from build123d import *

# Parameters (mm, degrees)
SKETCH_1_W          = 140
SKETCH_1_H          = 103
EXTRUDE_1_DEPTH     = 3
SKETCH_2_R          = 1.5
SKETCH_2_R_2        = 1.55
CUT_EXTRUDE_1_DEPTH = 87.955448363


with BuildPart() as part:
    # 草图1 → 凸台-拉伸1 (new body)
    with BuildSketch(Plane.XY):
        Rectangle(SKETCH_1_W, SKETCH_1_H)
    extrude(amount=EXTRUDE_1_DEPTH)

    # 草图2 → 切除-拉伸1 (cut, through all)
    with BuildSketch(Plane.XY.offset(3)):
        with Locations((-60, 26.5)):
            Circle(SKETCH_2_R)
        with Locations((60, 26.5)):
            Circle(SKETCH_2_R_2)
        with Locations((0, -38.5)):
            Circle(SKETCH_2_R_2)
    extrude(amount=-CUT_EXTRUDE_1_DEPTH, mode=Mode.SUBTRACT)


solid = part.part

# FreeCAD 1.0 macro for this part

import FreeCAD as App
import Part
import Sketcher

doc = App.newDocument("Part")
body = doc.addObject("PartDesign::Body", "Body")

# Sketch on XY plane
sketch1 = body.newObject("Sketcher::SketchObject", "Sketch")
sketch1.AttachmentSupport = (doc.getObject("XY_Plane"), [""])
sketch1.MapMode = "FlatFace"
sketch1.addGeometry([
    Part.LineSegment(App.Vector(-70, 52, 0), App.Vector(-70, -52, 0)),
    Part.LineSegment(App.Vector(-70, -52, 0), App.Vector(70, -52, 0)),
    Part.LineSegment(App.Vector(70, -52, 0), App.Vector(70, 52, 0)),
    Part.LineSegment(App.Vector(70, 52, 0), App.Vector(-70, 52, 0)),
], False)
sketch1.addConstraint([
    Sketcher.Constraint("Coincident", 0, 2, 1, 1),
    Sketcher.Constraint("Coincident", 1, 2, 2, 1),
    Sketcher.Constraint("Coincident", 2, 2, 3, 1),
    Sketcher.Constraint("Coincident", 3, 2, 0, 1),
    Sketcher.Constraint("Vertical", 0),
    Sketcher.Constraint("Horizontal", 1),
    Sketcher.Constraint("Vertical", 2),
    Sketcher.Constraint("Horizontal", 3),
    Sketcher.Constraint("Symmetric", 0, 2, 2, 2, -1, 1),
    Sketcher.Constraint("DistanceX", 1, 1, 1, 2, 140.0),
    Sketcher.Constraint("DistanceY", 0, 2, 0, 1, 103.0),
])
pad1 = body.newObject("PartDesign::Pad", "Pad")
pad1.Profile = sketch1
pad1.Length = 3

# Sketch on XY plane
sketch2 = body.newObject("Sketcher::SketchObject", "Sketch001")
sketch2.AttachmentSupport = (doc.getObject("XY_Plane"), [""])
sketch2.MapMode = "FlatFace"
sketch2.AttachmentOffset = App.Placement(App.Vector(0, 0, 3), App.Rotation())
sketch2.addGeometry([
    Part.Circle(App.Vector(-60, 26.5, 0), App.Vector(0, 0, 1), 1.5),
    Part.Circle(App.Vector(60, 26.5, 0), App.Vector(0, 0, 1), 1.6),
    Part.Circle(App.Vector(0, -38.5, 0), App.Vector(0, 0, 1), 1.6),
], False)
sketch2.addConstraint([
    Sketcher.Constraint("Equal", 1, 2),
    Sketcher.Constraint("Symmetric", 0, 3, 1, 3, -2),
    Sketcher.Constraint("PointOnObject", 2, 3, -2),
    Sketcher.Constraint("Diameter", 0, 3.0),
    Sketcher.Constraint("Diameter", 1, 3.1),
    Sketcher.Constraint("DistanceX", 0, 3, -1, 1, 60.0),
    Sketcher.Constraint("DistanceY", 2, 3, 0, 3, 65.0),
    Sketcher.Constraint("DistanceY", -1, 1, 0, 3, 26.5),
])
pocket1 = body.newObject("PartDesign::Pocket", "Pocket")
pocket1.Profile = sketch2
pocket1.Type = "ThroughAll"

doc.recompute()
